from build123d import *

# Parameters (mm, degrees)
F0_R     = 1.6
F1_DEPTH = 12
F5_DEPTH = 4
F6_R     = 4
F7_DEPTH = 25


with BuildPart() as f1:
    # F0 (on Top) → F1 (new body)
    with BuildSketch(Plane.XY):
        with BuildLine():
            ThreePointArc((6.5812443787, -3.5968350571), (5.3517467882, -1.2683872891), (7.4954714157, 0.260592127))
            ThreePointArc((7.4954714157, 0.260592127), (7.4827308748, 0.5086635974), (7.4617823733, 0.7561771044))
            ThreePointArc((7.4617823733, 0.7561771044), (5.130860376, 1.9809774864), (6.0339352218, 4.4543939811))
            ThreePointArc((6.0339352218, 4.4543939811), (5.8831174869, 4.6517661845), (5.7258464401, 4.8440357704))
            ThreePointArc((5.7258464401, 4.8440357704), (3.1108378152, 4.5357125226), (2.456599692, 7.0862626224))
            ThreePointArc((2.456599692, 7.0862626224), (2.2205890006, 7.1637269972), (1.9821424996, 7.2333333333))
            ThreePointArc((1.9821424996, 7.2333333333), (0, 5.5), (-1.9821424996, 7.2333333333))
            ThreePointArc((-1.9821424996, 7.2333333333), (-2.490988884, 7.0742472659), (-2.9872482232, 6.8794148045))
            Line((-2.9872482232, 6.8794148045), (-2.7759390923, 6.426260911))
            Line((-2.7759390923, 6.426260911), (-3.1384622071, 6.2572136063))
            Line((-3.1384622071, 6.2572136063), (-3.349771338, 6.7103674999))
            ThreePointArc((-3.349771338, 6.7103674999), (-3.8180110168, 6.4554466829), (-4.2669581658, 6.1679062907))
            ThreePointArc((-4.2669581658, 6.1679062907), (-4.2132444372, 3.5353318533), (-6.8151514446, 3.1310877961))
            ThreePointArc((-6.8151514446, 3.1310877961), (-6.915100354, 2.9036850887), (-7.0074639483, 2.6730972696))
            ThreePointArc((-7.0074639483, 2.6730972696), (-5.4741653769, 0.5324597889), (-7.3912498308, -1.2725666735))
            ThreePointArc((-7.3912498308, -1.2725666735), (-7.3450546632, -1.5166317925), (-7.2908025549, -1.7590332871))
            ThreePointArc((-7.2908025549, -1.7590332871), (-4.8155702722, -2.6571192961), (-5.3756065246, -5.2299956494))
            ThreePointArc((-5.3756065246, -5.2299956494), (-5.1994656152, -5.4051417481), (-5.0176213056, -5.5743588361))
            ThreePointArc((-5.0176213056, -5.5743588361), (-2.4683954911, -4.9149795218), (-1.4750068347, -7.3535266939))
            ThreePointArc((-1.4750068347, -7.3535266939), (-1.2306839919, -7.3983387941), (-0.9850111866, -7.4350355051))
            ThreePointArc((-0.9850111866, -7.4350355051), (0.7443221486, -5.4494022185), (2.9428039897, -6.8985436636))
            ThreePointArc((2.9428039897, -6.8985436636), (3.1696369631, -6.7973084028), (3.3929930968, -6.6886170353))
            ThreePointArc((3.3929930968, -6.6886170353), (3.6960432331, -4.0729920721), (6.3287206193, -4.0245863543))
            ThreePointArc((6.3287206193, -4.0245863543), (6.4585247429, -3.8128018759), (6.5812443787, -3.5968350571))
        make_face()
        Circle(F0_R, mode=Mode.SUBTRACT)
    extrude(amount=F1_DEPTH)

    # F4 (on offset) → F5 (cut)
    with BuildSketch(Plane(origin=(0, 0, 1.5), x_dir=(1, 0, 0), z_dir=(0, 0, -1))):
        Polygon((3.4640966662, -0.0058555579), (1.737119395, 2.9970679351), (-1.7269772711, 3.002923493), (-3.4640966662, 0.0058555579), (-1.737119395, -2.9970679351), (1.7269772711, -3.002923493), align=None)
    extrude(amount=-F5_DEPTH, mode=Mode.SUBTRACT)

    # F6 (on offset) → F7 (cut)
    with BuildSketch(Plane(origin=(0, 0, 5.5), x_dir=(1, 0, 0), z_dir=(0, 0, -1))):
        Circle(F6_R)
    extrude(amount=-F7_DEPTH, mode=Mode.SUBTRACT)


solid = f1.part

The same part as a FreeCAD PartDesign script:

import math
import FreeCAD as App
import Part
import Sketcher
Q = App.Units.Quantity

doc = App.newDocument("Part")
params = doc.addObject("Spreadsheet::Sheet", "Params")
for row, (alias, value) in enumerate([
    ("sketch1_radius", "2 mm"),
    ("sketch1_diameter", "3.2 mm"),
    ("sketch1_radius2", "7.5 mm"),
    ("sketch1_length", "0.5 mm"),
    ("sketch1_length2", "0.4 mm"),
    ("pad1_length", "12 mm"),
    ("pocket1_length", "4 mm"),
    ("sketch3_diameter", "8 mm"),
    ("pocket2_length", "25 mm"),
], start=1):
    params.set(f"A{row}", alias)
    params.set(f"B{row}", "=" + value)
    params.setAlias(f"B{row}", alias)

body = doc.addObject("PartDesign::Body", "Body")

# Sketch on XY plane
sketch1 = body.newObject("Sketcher::SketchObject", "Sketch")
sketch1.AttachmentSupport = (doc.getObject("XY_Plane"), [""])
sketch1.MapMode = "FlatFace"
sketch1.addGeometry([
    Part.ArcOfCircle(Part.Circle(App.Vector(7.297837, -1.729619, 0), App.Vector(0, 0, 1), 2), math.radians(84.328922), math.radians(249.004411)),  # 0
    Part.ArcOfCircle(Part.Circle(App.Vector(0, 0, 0), App.Vector(0, 0, 1), 7.5), math.radians(1.991178), math.radians(5.7866)),  # 1
    Part.ArcOfCircle(Part.Circle(App.Vector(6.996628, 2.701333, 0), App.Vector(0, 0, 1), 2), math.radians(118.773367), math.radians(283.448855)),  # 2
    Part.ArcOfCircle(Part.Circle(App.Vector(0, 0, 0), App.Vector(0, 0, 1), 7.5), math.radians(36.435622), math.radians(40.231044)),  # 3
    Part.ArcOfCircle(Part.Circle(App.Vector(4.242052, 6.185063, 0), App.Vector(0, 0, 1), 2), math.radians(153.217811), math.radians(317.8933)),  # 4
    Part.ArcOfCircle(Part.Circle(App.Vector(0, 0, 0), App.Vector(0, 0, 1), 7.5), math.radians(70.880067), math.radians(74.675489)),  # 5
    Part.ArcOfCircle(Part.Circle(App.Vector(0, 7.5, 0), App.Vector(0, 0, 1), 2), math.radians(-172.337744), math.radians(-7.662256)),  # 6
    Part.ArcOfCircle(Part.Circle(App.Vector(0, 0, 0), App.Vector(0, 0, 1), 7.5), math.radians(105.324511), math.radians(113.471931)),  # 7
    Part.LineSegment(App.Vector(-2.987248, 6.879415, 0), App.Vector(-2.775939, 6.426261, 0)),  # 8
    Part.LineSegment(App.Vector(-2.775939, 6.426261, 0), App.Vector(-3.138462, 6.257214, 0)),  # 9
    Part.LineSegment(App.Vector(-3.138462, 6.257214, 0), App.Vector(-3.349771, 6.710368, 0)),  # 10
    Part.ArcOfCircle(Part.Circle(App.Vector(0, 0, 0), App.Vector(0, 0, 1), 7.5), math.radians(116.528069), math.radians(124.675489)),  # 11
    Part.ArcOfCircle(Part.Circle(App.Vector(-5.745333, 4.820907, 0), App.Vector(0, 0, 1), 2), math.radians(-122.337744), math.radians(42.337744)),  # 12
    Part.ArcOfCircle(Part.Circle(App.Vector(0, 0, 0), App.Vector(0, 0, 1), 7.5), math.radians(155.324511), math.radians(159.119933)),  # 13
    Part.ArcOfCircle(Part.Circle(App.Vector(-7.464771, 0.726082, 0), App.Vector(0, 0, 1), 2), math.radians(-87.8933), math.radians(76.782189)),  # 14
    Part.ArcOfCircle(Part.Circle(App.Vector(0, 0, 0), App.Vector(0, 0, 1), 7.5), math.radians(-170.231044), math.radians(-166.435622)),  # 15
    Part.ArcOfCircle(Part.Circle(App.Vector(-6.566687, -3.623344, 0), App.Vector(0, 0, 1), 2), math.radians(-53.448855), math.radians(111.226633)),  # 16
    Part.ArcOfCircle(Part.Circle(App.Vector(0, 0, 0), App.Vector(0, 0, 1), 7.5), math.radians(-135.7866), math.radians(-131.991178)),  # 17
    Part.ArcOfCircle(Part.Circle(App.Vector(-3.365994, -6.702245, 0), App.Vector(0, 0, 1), 2), math.radians(-19.004411), math.radians(145.671078)),  # 18
    Part.ArcOfCircle(Part.Circle(App.Vector(0, 0, 0), App.Vector(0, 0, 1), 7.5), math.radians(-101.342155), math.radians(-97.546734)),  # 19
    Part.ArcOfCircle(Part.Circle(App.Vector(1.014985, -7.431003, 0), App.Vector(0, 0, 1), 2), math.radians(15.440033), math.radians(180.115522)),  # 20
    Part.ArcOfCircle(Part.Circle(App.Vector(0, 0, 0), App.Vector(0, 0, 1), 7.5), math.radians(-66.897711), math.radians(-63.102289)),  # 21
    Part.ArcOfCircle(Part.Circle(App.Vector(5.040059, -5.55408, 0), App.Vector(0, 0, 1), 2), math.radians(49.884478), math.radians(214.559967)),  # 22
    Part.ArcOfCircle(Part.Circle(App.Vector(0, 0, 0), App.Vector(0, 0, 1), 7.5), math.radians(-32.453266), math.radians(-28.657845)),  # 23
    Part.Circle(App.Vector(0, 0, 0), App.Vector(0, 0, 1), 1.6),  # 24
], False)
sketch1.addConstraint([
    Sketcher.Constraint("Coincident", 0, 1, 1, 1),
    Sketcher.Constraint("Coincident", 1, 2, 2, 2),
    Sketcher.Constraint("Coincident", 2, 1, 3, 1),
    Sketcher.Constraint("Coincident", 3, 2, 4, 2),
    Sketcher.Constraint("Coincident", 4, 1, 5, 1),
    Sketcher.Constraint("Coincident", 5, 2, 6, 2),
    Sketcher.Constraint("Coincident", 6, 1, 7, 1),
    Sketcher.Constraint("Coincident", 7, 2, 8, 1),
    Sketcher.Constraint("Coincident", 8, 2, 9, 1),
    Sketcher.Constraint("Coincident", 9, 2, 10, 1),
    Sketcher.Constraint("Coincident", 10, 2, 11, 1),
    Sketcher.Constraint("Coincident", 11, 2, 12, 2),
    Sketcher.Constraint("Coincident", 12, 1, 13, 1),
    Sketcher.Constraint("Coincident", 13, 2, 14, 2),
    Sketcher.Constraint("Coincident", 14, 1, 15, 1),
    Sketcher.Constraint("Coincident", 15, 2, 16, 2),
    Sketcher.Constraint("Coincident", 16, 1, 17, 1),
    Sketcher.Constraint("Coincident", 17, 2, 18, 2),
    Sketcher.Constraint("Coincident", 18, 1, 19, 1),
    Sketcher.Constraint("Coincident", 19, 2, 20, 2),
    Sketcher.Constraint("Coincident", 20, 1, 21, 1),
    Sketcher.Constraint("Coincident", 21, 2, 22, 2),
    Sketcher.Constraint("Coincident", 22, 1, 23, 1),
    Sketcher.Constraint("Coincident", 23, 2, 0, 2),
    Sketcher.Constraint("Coincident", 1, 3, -1, 1),
    Sketcher.Constraint("Coincident", 3, 3, -1, 1),
    Sketcher.Constraint("Coincident", 5, 3, -1, 1),
    Sketcher.Constraint("Coincident", 7, 3, -1, 1),
    Sketcher.Constraint("Coincident", 11, 3, -1, 1),
    Sketcher.Constraint("Coincident", 13, 3, -1, 1),
    Sketcher.Constraint("Coincident", 15, 3, -1, 1),
    Sketcher.Constraint("Coincident", 17, 3, -1, 1),
    Sketcher.Constraint("Coincident", 19, 3, -1, 1),
    Sketcher.Constraint("Coincident", 21, 3, -1, 1),
    Sketcher.Constraint("Coincident", 23, 3, -1, 1),
    Sketcher.Constraint("Coincident", 24, 3, -1, 1),
    Sketcher.Constraint("Equal", 0, 2),
    Sketcher.Constraint("Equal", 1, 3),
    Sketcher.Constraint("Equal", 2, 4),
    Sketcher.Constraint("Equal", 3, 5),
    Sketcher.Constraint("Equal", 4, 6),
    Sketcher.Constraint("Equal", 5, 7),
    Sketcher.Constraint("Equal", 7, 11),
    Sketcher.Constraint("Equal", 6, 12),
    Sketcher.Constraint("Equal", 11, 13),
    Sketcher.Constraint("Equal", 12, 14),
    Sketcher.Constraint("Equal", 13, 15),
    Sketcher.Constraint("Equal", 14, 16),
    Sketcher.Constraint("Equal", 15, 17),
    Sketcher.Constraint("Equal", 16, 18),
    Sketcher.Constraint("Equal", 17, 19),
    Sketcher.Constraint("Equal", 18, 20),
    Sketcher.Constraint("Equal", 19, 21),
    Sketcher.Constraint("Equal", 20, 22),
    Sketcher.Constraint("Equal", 21, 23),
    Sketcher.Constraint("PointOnObject", 6, 3, -2),
    Sketcher.Constraint("Perpendicular", 8, 9),
    Sketcher.Constraint("Perpendicular", 9, 10),
    Sketcher.Constraint("Equal", 8, 10),
    Sketcher.Constraint("Radius", 0, 2.0),
    Sketcher.Constraint("Diameter", 24, 3.2),
    Sketcher.Constraint("Radius", 1, 7.5),
    Sketcher.Constraint("Angle", 8, Q("-65 deg")),
    Sketcher.Constraint("Distance", 8, 0.5),
    Sketcher.Constraint("Distance", 9, 0.4),
    Sketcher.Constraint("DistanceY", -1, 1, 6, 3, 7.5),
    Sketcher.Constraint("DistanceY", 12, 3, 11, 2, 1.346999),
    Sketcher.Constraint("DistanceX", 13, 2, 9, 2, 3.869002),
    Sketcher.Constraint("DistanceX", 18, 1, 21, 2, 4.868),
    Sketcher.Constraint("DistanceX", -1, 1, 4, 1, 2.4566),
    Sketcher.Constraint("DistanceY", 18, 3, 16, 3, 3.0789),
    Sketcher.Constraint("DistanceY", 0, 1, 2, 1, 4.193802),
    Sketcher.Constraint("DistanceX", 2, 1, 0, 3, 1.263901),
    Sketcher.Constraint("DistanceY", 4, 3, 4, 1, 0.9012),
    Sketcher.Constraint("DistanceX", 14, 1, 12, 1, 0.576098),
    Sketcher.Constraint("DistanceX", 16, 1, 18, 1, 3.9006),
    Sketcher.Constraint("DistanceY", 20, 1, 18, 3, 0.196299),
    Sketcher.Constraint("DistanceY", 0, 3, -1, 1, 1.729619),
    Sketcher.Constraint("DistanceX", 14, 3, -1, 1, 7.464771),
    Sketcher.Constraint("DistanceX", -1, 1, 22, 3, 5.040059),
    Sketcher.Constraint("DistanceY", 22, 3, -1, 1, 5.55408),
    Sketcher.Constraint("DistanceX", 17, 2, -1, 1, 5.017621),
    Sketcher.Constraint("DistanceX", 19, 2, -1, 1, 0.985011),
    Sketcher.Constraint("DistanceX", 2, 3, 0, 3, 0.301209),
])
sketch1.setExpression("Constraints[59]", "Params.sketch1_radius")
sketch1.setExpression("Constraints[60]", "Params.sketch1_diameter")
sketch1.setExpression("Constraints[61]", "Params.sketch1_radius2")
sketch1.setExpression("Constraints[63]", "Params.sketch1_length")
sketch1.setExpression("Constraints[64]", "Params.sketch1_length2")
pad1 = body.newObject("PartDesign::Pad", "Pad")
pad1.Profile = sketch1
pad1.setExpression("Length", "Params.pad1_length")

# Sketch on XY plane
sketch2 = body.newObject("Sketcher::SketchObject", "Sketch001")
sketch2.AttachmentSupport = (doc.getObject("XY_Plane"), [""])
sketch2.MapMode = "FlatFace"
sketch2.AttachmentOffset = App.Placement(App.Vector(0, 0, 1.5), App.Rotation())
sketch2.addGeometry([
    Part.LineSegment(App.Vector(3.464097, 0.005856, 0), App.Vector(1.737119, -2.997068, 0)),  # 0
    Part.LineSegment(App.Vector(1.737119, -2.997068, 0), App.Vector(-1.726977, -3.002923, 0)),  # 1
    Part.LineSegment(App.Vector(-1.726977, -3.002923, 0), App.Vector(-3.464097, -0.005856, 0)),  # 2
    Part.LineSegment(App.Vector(-3.464097, -0.005856, 0), App.Vector(-1.737119, 2.997068, 0)),  # 3
    Part.LineSegment(App.Vector(-1.737119, 2.997068, 0), App.Vector(1.726977, 3.002923, 0)),  # 4
    Part.LineSegment(App.Vector(1.726977, 3.002923, 0), App.Vector(3.464097, 0.005856, 0)),  # 5
], False)
sketch2.addConstraint([
    Sketcher.Constraint("Coincident", 0, 2, 1, 1),
    Sketcher.Constraint("Coincident", 1, 2, 2, 1),
    Sketcher.Constraint("Coincident", 2, 2, 3, 1),
    Sketcher.Constraint("Coincident", 3, 2, 4, 1),
    Sketcher.Constraint("Coincident", 4, 2, 5, 1),
    Sketcher.Constraint("Coincident", 5, 2, 0, 1),
    Sketcher.Constraint("Symmetric", 0, 2, 3, 2, -1, 1),
    Sketcher.Constraint("Symmetric", 1, 2, 4, 2, -1, 1),
    Sketcher.Constraint("Symmetric", 2, 2, 5, 2, -1, 1),
    Sketcher.Constraint("Equal", 0, 1),
    Sketcher.Constraint("Equal", 1, 2),
    Sketcher.Constraint("Distance", 0, 3.464102),
    Sketcher.Constraint("DistanceX", -1, 1, 0, 2, 1.737119),
    Sketcher.Constraint("DistanceX", 2, 2, 1, 2, 1.737119),
    Sketcher.Constraint("DistanceY", 2, 2, 4, 2, 3.008779),
])
pocket1 = body.newObject("PartDesign::Pocket", "Pocket")
pocket1.Profile = sketch2
pocket1.setExpression("Length", "Params.pocket1_length")
pocket1.Reversed = True

# Sketch on XY plane
sketch3 = body.newObject("Sketcher::SketchObject", "Sketch002")
sketch3.AttachmentSupport = (doc.getObject("XY_Plane"), [""])
sketch3.MapMode = "FlatFace"
sketch3.AttachmentOffset = App.Placement(App.Vector(0, 0, 5.5), App.Rotation())
sketch3.addGeometry(Part.Circle(App.Vector(0, 0, 0), App.Vector(0, 0, 1), 4), False)
sketch3.addConstraint([
    Sketcher.Constraint("Coincident", 0, 3, -1, 1),
    Sketcher.Constraint("Diameter", 0, 8.0),
])
sketch3.setExpression("Constraints[1]", "Params.sketch3_diameter")
pocket2 = body.newObject("PartDesign::Pocket", "Pocket001")
pocket2.Profile = sketch3
pocket2.setExpression("Length", "Params.pocket2_length")
pocket2.Reversed = True

doc.recompute()
